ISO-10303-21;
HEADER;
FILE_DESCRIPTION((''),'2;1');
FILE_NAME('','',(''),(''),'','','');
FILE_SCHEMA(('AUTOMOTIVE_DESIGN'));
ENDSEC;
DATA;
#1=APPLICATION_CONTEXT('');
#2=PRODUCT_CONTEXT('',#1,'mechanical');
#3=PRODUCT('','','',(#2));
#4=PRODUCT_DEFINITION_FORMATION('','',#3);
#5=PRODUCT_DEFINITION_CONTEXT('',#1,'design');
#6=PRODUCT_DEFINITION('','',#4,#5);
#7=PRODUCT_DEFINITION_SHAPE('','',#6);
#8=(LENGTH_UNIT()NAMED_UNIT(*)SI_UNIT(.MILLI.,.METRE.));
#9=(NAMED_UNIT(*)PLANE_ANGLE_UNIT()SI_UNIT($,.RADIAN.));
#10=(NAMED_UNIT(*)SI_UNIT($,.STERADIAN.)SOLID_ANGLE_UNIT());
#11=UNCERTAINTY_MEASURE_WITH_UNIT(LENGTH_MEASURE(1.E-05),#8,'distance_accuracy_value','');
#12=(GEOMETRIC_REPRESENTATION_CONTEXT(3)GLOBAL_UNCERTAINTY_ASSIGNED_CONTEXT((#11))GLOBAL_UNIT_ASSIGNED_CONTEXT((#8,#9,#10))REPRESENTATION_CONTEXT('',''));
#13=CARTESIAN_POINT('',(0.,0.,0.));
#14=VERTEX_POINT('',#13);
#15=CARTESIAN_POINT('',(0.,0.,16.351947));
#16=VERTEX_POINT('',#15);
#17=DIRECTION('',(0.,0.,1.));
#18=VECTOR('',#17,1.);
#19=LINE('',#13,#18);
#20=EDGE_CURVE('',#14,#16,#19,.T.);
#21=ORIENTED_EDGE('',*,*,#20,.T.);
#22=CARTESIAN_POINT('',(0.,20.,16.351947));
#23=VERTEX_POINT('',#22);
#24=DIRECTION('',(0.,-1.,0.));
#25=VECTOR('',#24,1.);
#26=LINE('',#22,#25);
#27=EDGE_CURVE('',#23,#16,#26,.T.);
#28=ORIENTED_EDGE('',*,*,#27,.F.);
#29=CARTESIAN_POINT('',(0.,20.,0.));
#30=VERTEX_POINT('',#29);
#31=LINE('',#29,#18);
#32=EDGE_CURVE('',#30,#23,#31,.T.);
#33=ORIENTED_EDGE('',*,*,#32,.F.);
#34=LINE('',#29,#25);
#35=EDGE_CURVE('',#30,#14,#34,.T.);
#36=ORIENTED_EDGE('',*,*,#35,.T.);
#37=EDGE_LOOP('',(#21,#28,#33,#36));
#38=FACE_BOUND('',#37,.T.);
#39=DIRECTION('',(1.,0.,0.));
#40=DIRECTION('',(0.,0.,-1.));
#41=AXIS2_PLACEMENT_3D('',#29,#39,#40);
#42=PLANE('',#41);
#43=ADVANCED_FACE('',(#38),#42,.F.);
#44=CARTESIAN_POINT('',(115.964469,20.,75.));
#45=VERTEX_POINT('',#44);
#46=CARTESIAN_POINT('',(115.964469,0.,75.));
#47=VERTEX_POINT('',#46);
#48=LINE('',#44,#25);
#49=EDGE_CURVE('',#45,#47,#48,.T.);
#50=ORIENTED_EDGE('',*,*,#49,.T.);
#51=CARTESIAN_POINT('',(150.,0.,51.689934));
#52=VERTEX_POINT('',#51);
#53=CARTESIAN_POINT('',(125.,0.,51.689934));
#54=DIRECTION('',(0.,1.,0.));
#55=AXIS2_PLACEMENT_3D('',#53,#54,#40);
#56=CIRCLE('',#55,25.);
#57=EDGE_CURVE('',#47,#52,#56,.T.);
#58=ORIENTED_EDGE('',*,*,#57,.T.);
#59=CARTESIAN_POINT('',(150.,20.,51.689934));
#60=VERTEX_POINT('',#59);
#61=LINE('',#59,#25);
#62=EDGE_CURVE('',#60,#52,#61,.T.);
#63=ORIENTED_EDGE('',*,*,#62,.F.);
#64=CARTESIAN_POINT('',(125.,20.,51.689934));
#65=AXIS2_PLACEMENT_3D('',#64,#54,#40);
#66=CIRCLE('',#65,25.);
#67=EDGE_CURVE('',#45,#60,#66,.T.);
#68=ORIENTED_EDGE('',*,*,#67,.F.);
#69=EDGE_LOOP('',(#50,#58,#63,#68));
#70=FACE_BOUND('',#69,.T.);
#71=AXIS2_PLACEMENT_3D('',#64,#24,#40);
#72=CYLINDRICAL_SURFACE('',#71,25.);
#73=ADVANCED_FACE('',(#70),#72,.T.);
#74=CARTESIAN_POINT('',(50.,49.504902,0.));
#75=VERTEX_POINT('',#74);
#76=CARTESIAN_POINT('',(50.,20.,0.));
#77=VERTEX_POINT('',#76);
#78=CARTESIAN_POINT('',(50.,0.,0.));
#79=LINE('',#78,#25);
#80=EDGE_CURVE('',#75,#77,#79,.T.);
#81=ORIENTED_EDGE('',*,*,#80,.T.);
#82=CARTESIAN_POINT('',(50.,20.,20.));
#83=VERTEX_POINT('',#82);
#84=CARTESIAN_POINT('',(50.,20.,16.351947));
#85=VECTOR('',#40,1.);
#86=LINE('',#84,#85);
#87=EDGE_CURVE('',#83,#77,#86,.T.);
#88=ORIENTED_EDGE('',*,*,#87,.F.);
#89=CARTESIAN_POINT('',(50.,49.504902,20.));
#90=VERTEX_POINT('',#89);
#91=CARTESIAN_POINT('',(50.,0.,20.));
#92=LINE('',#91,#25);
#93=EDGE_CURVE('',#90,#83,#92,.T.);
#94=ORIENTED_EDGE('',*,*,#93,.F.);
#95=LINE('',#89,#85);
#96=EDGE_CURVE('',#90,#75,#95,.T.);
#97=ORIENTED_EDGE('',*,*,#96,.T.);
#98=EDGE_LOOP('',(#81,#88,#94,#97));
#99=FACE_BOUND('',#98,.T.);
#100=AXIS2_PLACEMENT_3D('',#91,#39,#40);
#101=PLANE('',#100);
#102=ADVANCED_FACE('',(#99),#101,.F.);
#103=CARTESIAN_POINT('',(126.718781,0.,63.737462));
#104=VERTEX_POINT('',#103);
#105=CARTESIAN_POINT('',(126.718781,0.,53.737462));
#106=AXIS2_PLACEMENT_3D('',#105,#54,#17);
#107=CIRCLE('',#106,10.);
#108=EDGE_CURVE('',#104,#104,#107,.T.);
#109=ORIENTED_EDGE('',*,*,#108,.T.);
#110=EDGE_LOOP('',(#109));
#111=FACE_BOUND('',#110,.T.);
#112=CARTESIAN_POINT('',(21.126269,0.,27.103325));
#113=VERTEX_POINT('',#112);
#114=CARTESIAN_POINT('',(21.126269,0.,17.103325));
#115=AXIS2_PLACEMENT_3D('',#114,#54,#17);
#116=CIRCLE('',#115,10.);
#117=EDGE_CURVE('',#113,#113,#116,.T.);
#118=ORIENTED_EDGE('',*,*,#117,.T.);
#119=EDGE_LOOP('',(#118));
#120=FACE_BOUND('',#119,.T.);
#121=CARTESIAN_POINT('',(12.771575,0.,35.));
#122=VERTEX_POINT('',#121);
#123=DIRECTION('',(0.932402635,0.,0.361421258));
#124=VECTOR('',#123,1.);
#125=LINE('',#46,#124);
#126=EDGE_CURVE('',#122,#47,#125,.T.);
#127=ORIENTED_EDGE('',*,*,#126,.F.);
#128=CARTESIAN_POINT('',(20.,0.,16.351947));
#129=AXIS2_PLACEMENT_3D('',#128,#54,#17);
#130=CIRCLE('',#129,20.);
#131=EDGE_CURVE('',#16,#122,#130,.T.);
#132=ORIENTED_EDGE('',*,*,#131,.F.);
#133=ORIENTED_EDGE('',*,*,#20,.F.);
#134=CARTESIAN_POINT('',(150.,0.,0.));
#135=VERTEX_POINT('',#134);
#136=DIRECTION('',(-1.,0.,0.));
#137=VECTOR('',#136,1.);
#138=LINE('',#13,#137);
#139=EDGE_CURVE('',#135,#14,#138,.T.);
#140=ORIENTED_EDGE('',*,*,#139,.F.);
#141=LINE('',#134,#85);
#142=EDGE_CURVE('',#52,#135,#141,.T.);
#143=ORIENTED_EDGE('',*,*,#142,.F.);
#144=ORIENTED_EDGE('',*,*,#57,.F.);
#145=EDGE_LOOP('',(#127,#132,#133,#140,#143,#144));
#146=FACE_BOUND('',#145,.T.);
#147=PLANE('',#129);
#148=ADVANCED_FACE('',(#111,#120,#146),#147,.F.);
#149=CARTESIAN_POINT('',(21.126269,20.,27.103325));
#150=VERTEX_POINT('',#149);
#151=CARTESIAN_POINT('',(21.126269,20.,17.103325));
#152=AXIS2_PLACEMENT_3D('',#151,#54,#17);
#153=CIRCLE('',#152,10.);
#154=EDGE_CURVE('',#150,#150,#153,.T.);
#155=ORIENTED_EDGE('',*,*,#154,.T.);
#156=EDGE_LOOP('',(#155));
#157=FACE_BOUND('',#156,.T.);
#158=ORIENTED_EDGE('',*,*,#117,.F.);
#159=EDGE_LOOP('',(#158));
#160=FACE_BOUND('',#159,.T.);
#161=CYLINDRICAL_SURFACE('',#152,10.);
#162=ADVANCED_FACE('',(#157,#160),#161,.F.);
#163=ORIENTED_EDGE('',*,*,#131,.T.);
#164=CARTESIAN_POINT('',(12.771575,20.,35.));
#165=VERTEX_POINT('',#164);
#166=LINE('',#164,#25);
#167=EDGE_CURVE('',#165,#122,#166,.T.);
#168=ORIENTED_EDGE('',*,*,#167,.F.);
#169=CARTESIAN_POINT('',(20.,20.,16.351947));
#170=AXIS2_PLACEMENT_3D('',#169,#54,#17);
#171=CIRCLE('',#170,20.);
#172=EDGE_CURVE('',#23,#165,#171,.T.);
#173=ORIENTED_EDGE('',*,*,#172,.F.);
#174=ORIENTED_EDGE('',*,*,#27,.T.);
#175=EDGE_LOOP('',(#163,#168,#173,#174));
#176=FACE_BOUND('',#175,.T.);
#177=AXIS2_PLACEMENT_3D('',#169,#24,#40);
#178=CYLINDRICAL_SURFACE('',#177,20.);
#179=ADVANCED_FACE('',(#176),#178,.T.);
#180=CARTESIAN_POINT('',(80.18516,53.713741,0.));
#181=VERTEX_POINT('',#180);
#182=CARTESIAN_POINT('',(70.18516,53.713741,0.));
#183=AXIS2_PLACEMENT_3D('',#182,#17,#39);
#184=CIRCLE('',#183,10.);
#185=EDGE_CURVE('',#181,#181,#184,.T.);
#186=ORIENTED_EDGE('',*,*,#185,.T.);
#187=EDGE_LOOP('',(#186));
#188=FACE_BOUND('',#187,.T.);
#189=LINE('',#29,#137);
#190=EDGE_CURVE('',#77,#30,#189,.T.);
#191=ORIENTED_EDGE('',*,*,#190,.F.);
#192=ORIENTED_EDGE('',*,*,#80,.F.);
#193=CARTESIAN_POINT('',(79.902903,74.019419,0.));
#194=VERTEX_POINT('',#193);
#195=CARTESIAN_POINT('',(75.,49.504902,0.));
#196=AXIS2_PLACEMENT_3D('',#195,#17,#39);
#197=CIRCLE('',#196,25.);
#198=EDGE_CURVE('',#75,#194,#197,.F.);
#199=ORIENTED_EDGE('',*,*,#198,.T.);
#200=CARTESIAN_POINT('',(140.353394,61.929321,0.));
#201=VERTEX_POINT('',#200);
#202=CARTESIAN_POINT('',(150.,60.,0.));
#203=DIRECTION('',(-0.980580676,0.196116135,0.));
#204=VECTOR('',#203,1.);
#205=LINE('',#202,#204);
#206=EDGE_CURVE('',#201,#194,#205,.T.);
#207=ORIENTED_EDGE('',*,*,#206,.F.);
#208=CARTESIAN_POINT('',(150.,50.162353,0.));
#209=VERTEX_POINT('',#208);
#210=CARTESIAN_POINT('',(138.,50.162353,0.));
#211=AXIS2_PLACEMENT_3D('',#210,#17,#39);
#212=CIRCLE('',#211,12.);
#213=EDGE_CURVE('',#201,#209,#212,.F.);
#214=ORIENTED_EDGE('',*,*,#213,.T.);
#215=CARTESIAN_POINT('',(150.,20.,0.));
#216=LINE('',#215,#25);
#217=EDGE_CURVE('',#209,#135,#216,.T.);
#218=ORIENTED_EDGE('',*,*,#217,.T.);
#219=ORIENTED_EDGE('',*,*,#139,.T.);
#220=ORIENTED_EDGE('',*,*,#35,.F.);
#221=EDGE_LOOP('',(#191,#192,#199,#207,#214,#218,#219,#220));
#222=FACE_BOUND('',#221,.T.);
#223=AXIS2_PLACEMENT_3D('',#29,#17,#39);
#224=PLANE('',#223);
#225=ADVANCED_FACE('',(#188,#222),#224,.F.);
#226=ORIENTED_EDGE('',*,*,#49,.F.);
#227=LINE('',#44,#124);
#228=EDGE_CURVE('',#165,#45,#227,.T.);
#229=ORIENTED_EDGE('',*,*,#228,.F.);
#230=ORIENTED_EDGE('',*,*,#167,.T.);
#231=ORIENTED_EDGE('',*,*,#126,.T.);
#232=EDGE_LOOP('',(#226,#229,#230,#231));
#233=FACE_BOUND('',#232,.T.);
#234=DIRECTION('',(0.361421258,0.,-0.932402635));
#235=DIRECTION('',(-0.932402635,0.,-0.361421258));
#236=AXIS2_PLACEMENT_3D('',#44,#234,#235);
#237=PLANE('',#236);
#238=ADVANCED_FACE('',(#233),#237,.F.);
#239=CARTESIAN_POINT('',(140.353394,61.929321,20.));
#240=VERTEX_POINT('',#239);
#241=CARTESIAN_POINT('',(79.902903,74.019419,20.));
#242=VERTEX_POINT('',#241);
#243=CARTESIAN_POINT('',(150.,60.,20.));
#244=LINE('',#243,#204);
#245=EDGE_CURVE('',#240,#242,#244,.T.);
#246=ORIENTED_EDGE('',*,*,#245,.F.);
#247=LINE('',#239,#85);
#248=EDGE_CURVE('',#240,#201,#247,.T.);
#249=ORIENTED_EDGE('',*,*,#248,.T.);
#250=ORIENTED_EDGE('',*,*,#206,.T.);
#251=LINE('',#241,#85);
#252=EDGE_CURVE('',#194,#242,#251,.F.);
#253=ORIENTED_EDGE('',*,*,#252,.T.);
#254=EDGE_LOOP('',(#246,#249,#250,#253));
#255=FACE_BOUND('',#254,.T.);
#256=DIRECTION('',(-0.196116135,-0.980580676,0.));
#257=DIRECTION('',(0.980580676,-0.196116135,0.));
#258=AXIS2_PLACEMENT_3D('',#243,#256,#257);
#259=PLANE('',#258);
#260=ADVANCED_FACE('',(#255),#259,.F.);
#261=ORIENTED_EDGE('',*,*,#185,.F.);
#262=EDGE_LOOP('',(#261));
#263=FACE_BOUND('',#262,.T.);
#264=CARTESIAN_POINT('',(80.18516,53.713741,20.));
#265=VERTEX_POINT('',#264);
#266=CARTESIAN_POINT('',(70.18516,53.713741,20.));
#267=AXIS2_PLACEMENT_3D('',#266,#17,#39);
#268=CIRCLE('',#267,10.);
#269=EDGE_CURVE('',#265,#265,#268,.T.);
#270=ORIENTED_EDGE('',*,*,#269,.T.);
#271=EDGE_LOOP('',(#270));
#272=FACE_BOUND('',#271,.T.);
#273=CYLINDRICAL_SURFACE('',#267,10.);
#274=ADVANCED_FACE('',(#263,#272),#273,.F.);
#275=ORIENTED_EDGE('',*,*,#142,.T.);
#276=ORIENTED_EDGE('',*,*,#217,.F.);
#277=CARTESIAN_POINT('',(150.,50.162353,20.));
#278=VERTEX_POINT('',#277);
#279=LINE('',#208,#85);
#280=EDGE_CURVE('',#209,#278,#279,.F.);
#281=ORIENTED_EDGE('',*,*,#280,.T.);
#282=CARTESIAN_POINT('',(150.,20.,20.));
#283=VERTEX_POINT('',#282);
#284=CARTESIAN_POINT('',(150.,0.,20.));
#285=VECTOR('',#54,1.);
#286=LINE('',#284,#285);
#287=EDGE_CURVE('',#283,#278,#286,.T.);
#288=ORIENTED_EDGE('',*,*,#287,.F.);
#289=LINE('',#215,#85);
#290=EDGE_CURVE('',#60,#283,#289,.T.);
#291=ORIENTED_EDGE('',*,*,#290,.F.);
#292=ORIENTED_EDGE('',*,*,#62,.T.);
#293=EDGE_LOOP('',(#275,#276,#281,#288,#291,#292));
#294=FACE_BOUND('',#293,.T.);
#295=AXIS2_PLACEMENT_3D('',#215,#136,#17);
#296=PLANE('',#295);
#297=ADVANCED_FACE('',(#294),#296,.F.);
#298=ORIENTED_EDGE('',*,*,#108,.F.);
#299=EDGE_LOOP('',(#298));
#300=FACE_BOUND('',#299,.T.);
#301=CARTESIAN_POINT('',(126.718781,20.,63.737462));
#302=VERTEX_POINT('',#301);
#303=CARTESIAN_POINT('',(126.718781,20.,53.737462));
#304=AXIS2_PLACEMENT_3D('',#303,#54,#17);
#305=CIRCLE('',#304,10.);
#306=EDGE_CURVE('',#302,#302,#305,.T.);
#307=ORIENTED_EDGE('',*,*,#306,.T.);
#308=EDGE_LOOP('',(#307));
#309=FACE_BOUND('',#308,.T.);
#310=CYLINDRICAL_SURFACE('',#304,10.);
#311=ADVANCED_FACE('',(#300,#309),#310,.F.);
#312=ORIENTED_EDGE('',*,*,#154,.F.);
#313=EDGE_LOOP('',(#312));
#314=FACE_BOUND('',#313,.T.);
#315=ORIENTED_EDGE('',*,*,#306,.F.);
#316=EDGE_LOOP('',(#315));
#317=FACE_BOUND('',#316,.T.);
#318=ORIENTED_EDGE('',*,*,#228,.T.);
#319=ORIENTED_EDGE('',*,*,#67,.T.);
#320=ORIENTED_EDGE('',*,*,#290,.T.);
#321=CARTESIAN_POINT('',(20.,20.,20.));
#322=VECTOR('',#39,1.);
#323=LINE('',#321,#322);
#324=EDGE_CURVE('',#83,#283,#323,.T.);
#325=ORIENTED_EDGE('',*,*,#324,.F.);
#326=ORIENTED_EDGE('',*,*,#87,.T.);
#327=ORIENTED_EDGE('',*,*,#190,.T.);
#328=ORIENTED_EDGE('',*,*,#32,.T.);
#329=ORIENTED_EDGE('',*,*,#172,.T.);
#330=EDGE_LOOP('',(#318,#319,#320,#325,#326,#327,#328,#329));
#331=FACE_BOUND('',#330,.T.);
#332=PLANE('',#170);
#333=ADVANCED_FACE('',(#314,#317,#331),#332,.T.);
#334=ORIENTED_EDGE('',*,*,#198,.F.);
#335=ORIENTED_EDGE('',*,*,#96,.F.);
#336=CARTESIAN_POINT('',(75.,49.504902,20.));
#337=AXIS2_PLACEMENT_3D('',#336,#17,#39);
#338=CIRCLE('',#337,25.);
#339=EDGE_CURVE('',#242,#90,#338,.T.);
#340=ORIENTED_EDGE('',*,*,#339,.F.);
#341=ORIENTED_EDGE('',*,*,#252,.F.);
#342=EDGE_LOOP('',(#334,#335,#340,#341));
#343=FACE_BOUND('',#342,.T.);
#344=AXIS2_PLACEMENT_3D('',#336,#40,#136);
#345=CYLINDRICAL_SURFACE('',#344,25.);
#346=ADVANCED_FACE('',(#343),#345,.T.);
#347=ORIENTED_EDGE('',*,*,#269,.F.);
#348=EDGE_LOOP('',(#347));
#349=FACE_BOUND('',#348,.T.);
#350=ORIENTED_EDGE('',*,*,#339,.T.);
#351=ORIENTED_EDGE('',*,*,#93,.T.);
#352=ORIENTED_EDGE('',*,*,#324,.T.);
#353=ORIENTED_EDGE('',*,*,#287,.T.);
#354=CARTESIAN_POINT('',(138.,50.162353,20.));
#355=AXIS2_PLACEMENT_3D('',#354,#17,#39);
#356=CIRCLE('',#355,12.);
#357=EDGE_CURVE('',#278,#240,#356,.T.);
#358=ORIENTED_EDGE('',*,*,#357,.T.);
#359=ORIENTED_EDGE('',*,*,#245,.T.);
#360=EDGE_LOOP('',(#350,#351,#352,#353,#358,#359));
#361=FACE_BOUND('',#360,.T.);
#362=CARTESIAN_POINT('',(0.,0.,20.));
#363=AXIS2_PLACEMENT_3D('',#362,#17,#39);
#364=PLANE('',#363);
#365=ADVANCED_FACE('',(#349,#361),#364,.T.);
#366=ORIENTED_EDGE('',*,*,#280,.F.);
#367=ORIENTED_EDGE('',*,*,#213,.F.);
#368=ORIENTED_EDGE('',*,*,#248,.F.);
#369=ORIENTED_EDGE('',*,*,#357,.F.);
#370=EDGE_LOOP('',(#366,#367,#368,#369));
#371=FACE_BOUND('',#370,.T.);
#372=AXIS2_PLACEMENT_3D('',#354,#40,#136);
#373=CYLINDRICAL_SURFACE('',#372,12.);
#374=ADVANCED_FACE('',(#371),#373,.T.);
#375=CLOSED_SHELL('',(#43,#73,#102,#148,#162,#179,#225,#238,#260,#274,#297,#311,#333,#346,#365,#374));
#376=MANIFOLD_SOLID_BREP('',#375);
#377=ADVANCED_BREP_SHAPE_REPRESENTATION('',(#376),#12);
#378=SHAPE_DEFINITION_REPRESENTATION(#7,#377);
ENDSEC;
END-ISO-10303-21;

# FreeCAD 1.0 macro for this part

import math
import FreeCAD as App
import Part
import Sketcher
from FreeCAD import Vector


def edges_at(feature, points):
    """Names of the edges that pass closest to the given points."""
    edges = feature.Shape.Edges
    near = lambda p: min(range(len(edges)), key=lambda i: edges[i].distToShape(Part.Vertex(*p))[0])
    return sorted({f"Edge{near(p) + 1}" for p in points})

doc = App.newDocument("Part")
params = doc.addObject("Spreadsheet::Sheet", "Params")
for row, (alias, value) in enumerate([
    ("sketch1_radius", "20 mm"),
    ("sketch1_radius2", "25 mm"),
    ("sketch1_width", "150 mm"),
    ("pad1_length", "20 mm"),
    ("sketch2_width", "100 mm"),
    ("sketch2_height", "60 mm"),
    ("sketch2_height2", "80 mm"),
    ("pad2_length", "20 mm"),
    ("fillet_radius", "25 mm"),
    ("fillet2_radius", "12 mm"),
    ("sketch3_diameter", "20 mm"),
    ("hole_diameter", "20 mm"),
    ("sketch4_diameter", "20 mm"),
    ("hole2_diameter", "20 mm"),
    ("sketch5_diameter", "20 mm"),
    ("hole3_diameter", "20 mm"),
], start=1):
    params.set(f"A{row}", alias)
    params.set(f"B{row}", "=" + value)
    params.setAlias(f"B{row}", alias)

body = doc.addObject("PartDesign::Body", "Body")

# Sketch on XZ plane
sketch1 = body.newObject("Sketcher::SketchObject", "Sketch")
sketch1.AttachmentSupport = (doc.getObject("XZ_Plane"), [""])
sketch1.MapMode = "FlatFace"
sketch1.addGeometry([
    Part.LineSegment(Vector(150, 0, 0), Vector(0, 0, 0)),  # 0
    Part.LineSegment(Vector(0, 0, 0), Vector(0, 16.351947, 0)),  # 1
    Part.ArcOfCircle(Part.Circle(Vector(20, 16.351947, 0), Vector(0, 0, 1), 20), math.radians(111.187506), math.radians(180)),  # 2
    Part.LineSegment(Vector(12.771575, 35, 0), Vector(115.964469, 75, 0)),  # 3
    Part.ArcOfCircle(Part.Circle(Vector(125, 51.689934, 0), Vector(0, 0, 1), 25), math.radians(0), math.radians(111.187506)),  # 4
    Part.LineSegment(Vector(150, 51.689934, 0), Vector(150, 0, 0)),  # 5
], False)
sketch1.addConstraint([
    Sketcher.Constraint("Coincident", 0, 2, 1, 1),
    Sketcher.Constraint("Tangent", 1, 2, 2, 2),
    Sketcher.Constraint("Tangent", 2, 1, 3, 1),
    Sketcher.Constraint("Tangent", 3, 2, 4, 2),
    Sketcher.Constraint("Tangent", 4, 1, 5, 1),
    Sketcher.Constraint("Coincident", 5, 2, 0, 1),
    Sketcher.Constraint("Horizontal", 0),
    Sketcher.Constraint("Vertical", 1),
    Sketcher.Constraint("Vertical", 5),
    Sketcher.Constraint("Coincident", 0, 2, -1, 1),
    Sketcher.Constraint("Radius", 2, 20.0),
    Sketcher.Constraint("Radius", 4, 25.0),
    Sketcher.Constraint("DistanceX", 0, 2, 0, 1, 150.0),
    Sketcher.Constraint("DistanceY", -1, 1, 2, 1, 35.0),
    Sketcher.Constraint("DistanceY", -1, 1, 3, 2, 75.0),
])
sketch1.setExpression("Constraints[10]", "Params.sketch1_radius")
sketch1.setExpression("Constraints[11]", "Params.sketch1_radius2")
sketch1.setExpression("Constraints[12]", "Params.sketch1_width")
pad1 = body.newObject("PartDesign::Pad", "Pad")
pad1.Profile = sketch1
pad1.setExpression("Length", "Params.pad1_length")
pad1.Reversed = True

# Sketch on XY plane
sketch2 = body.newObject("Sketcher::SketchObject", "Sketch001")
sketch2.AttachmentSupport = (doc.getObject("XY_Plane"), [""])
sketch2.MapMode = "FlatFace"
sketch2.addGeometry([
    Part.LineSegment(Vector(50, 0, 0), Vector(150, 0, 0)),
    Part.LineSegment(Vector(150, 0, 0), Vector(150, 60, 0)),
    Part.LineSegment(Vector(150, 60, 0), Vector(50, 80, 0)),
    Part.LineSegment(Vector(50, 80, 0), Vector(50, 0, 0)),
], False)
sketch2.addConstraint([
    Sketcher.Constraint("Coincident", 0, 2, 1, 1),
    Sketcher.Constraint("Coincident", 1, 2, 2, 1),
    Sketcher.Constraint("Coincident", 2, 2, 3, 1),
    Sketcher.Constraint("Coincident", 3, 2, 0, 1),
    Sketcher.Constraint("Horizontal", 0),
    Sketcher.Constraint("Vertical", 1),
    Sketcher.Constraint("Vertical", 3),
    Sketcher.Constraint("PointOnObject", 0, 2, -1),
    Sketcher.Constraint("DistanceX", 0, 1, 0, 2, 100.0),
    Sketcher.Constraint("DistanceY", 1, 1, 1, 2, 60.0),
    Sketcher.Constraint("DistanceY", 3, 2, 3, 1, 80.0),
    Sketcher.Constraint("DistanceX", -1, 1, 0, 2, 150.0),
])
sketch2.setExpression("Constraints[8]", "Params.sketch2_width")
sketch2.setExpression("Constraints[9]", "Params.sketch2_height")
sketch2.setExpression("Constraints[10]", "Params.sketch2_height2")
pad2 = body.newObject("PartDesign::Pad", "Pad001")
pad2.Profile = sketch2
pad2.setExpression("Length", "Params.pad2_length")
doc.recompute()

fillet = body.newObject("PartDesign::Fillet", "Fillet")
fillet.Base = (pad2, edges_at(pad2, [(50, 80, 10)]))
fillet.setExpression("Radius", "Params.fillet_radius")
doc.recompute()

fillet2 = body.newObject("PartDesign::Fillet", "Fillet001")
fillet2.Base = (fillet, edges_at(fillet, [(150, 60, 10)]))
fillet2.setExpression("Radius", "Params.fillet2_radius")

# Sketch on XY plane
sketch3 = body.newObject("Sketcher::SketchObject", "Sketch002")
sketch3.AttachmentSupport = (doc.getObject("XY_Plane"), [""])
sketch3.MapMode = "FlatFace"
sketch3.AttachmentOffset = App.Placement(Vector(0, 0, 20), App.Rotation())
sketch3.addGeometry(Part.Circle(Vector(70.18516, 53.713741, 0), Vector(0, 0, 1), 10), False)
sketch3.addConstraint([
    Sketcher.Constraint("Diameter", 0, 20.0),
    Sketcher.Constraint("DistanceX", -1, 1, 0, 3, 70.18516),
    Sketcher.Constraint("DistanceY", -1, 1, 0, 3, 53.713741),
])
sketch3.setExpression("Constraints[0]", "Params.sketch3_diameter")
doc.recompute()
hole = body.newObject("PartDesign::Hole", "Hole")
hole.Profile = sketch3
hole.ThreadType = "None"
hole.setExpression("Diameter", "Params.hole_diameter")
hole.DepthType = "ThroughAll"

# Sketch on XZ plane
sketch4 = body.newObject("Sketcher::SketchObject", "Sketch003")
sketch4.AttachmentSupport = (doc.getObject("XZ_Plane"), [""])
sketch4.MapMode = "FlatFace"
sketch4.AttachmentOffset = App.Placement(Vector(0, 0, -20), App.Rotation())
sketch4.addGeometry(Part.Circle(Vector(21.126269, 17.103325, 0), Vector(0, 0, 1), 10), False)
sketch4.addConstraint([
    Sketcher.Constraint("Diameter", 0, 20.0),
    Sketcher.Constraint("DistanceX", -1, 1, 0, 3, 21.126269),
    Sketcher.Constraint("DistanceY", -1, 1, 0, 3, 17.103325),
])
sketch4.setExpression("Constraints[0]", "Params.sketch4_diameter")
doc.recompute()
hole2 = body.newObject("PartDesign::Hole", "Hole001")
hole2.Profile = sketch4
hole2.ThreadType = "None"
hole2.setExpression("Diameter", "Params.hole2_diameter")
hole2.DepthType = "ThroughAll"
hole2.Reversed = True

# Sketch on XZ plane
sketch5 = body.newObject("Sketcher::SketchObject", "Sketch004")
sketch5.AttachmentSupport = (doc.getObject("XZ_Plane"), [""])
sketch5.MapMode = "FlatFace"
sketch5.AttachmentOffset = App.Placement(Vector(0, 0, -20), App.Rotation())
sketch5.addGeometry(Part.Circle(Vector(126.718781, 53.737462, 0), Vector(0, 0, 1), 10), False)
sketch5.addConstraint([
    Sketcher.Constraint("Diameter", 0, 20.0),
    Sketcher.Constraint("DistanceX", -1, 1, 0, 3, 126.718781),
    Sketcher.Constraint("DistanceY", -1, 1, 0, 3, 53.737462),
])
sketch5.setExpression("Constraints[0]", "Params.sketch5_diameter")
doc.recompute()
hole3 = body.newObject("PartDesign::Hole", "Hole002")
hole3.Profile = sketch5
hole3.ThreadType = "None"
hole3.setExpression("Diameter", "Params.hole3_diameter")
hole3.DepthType = "ThroughAll"
hole3.Reversed = True

doc.recompute()
